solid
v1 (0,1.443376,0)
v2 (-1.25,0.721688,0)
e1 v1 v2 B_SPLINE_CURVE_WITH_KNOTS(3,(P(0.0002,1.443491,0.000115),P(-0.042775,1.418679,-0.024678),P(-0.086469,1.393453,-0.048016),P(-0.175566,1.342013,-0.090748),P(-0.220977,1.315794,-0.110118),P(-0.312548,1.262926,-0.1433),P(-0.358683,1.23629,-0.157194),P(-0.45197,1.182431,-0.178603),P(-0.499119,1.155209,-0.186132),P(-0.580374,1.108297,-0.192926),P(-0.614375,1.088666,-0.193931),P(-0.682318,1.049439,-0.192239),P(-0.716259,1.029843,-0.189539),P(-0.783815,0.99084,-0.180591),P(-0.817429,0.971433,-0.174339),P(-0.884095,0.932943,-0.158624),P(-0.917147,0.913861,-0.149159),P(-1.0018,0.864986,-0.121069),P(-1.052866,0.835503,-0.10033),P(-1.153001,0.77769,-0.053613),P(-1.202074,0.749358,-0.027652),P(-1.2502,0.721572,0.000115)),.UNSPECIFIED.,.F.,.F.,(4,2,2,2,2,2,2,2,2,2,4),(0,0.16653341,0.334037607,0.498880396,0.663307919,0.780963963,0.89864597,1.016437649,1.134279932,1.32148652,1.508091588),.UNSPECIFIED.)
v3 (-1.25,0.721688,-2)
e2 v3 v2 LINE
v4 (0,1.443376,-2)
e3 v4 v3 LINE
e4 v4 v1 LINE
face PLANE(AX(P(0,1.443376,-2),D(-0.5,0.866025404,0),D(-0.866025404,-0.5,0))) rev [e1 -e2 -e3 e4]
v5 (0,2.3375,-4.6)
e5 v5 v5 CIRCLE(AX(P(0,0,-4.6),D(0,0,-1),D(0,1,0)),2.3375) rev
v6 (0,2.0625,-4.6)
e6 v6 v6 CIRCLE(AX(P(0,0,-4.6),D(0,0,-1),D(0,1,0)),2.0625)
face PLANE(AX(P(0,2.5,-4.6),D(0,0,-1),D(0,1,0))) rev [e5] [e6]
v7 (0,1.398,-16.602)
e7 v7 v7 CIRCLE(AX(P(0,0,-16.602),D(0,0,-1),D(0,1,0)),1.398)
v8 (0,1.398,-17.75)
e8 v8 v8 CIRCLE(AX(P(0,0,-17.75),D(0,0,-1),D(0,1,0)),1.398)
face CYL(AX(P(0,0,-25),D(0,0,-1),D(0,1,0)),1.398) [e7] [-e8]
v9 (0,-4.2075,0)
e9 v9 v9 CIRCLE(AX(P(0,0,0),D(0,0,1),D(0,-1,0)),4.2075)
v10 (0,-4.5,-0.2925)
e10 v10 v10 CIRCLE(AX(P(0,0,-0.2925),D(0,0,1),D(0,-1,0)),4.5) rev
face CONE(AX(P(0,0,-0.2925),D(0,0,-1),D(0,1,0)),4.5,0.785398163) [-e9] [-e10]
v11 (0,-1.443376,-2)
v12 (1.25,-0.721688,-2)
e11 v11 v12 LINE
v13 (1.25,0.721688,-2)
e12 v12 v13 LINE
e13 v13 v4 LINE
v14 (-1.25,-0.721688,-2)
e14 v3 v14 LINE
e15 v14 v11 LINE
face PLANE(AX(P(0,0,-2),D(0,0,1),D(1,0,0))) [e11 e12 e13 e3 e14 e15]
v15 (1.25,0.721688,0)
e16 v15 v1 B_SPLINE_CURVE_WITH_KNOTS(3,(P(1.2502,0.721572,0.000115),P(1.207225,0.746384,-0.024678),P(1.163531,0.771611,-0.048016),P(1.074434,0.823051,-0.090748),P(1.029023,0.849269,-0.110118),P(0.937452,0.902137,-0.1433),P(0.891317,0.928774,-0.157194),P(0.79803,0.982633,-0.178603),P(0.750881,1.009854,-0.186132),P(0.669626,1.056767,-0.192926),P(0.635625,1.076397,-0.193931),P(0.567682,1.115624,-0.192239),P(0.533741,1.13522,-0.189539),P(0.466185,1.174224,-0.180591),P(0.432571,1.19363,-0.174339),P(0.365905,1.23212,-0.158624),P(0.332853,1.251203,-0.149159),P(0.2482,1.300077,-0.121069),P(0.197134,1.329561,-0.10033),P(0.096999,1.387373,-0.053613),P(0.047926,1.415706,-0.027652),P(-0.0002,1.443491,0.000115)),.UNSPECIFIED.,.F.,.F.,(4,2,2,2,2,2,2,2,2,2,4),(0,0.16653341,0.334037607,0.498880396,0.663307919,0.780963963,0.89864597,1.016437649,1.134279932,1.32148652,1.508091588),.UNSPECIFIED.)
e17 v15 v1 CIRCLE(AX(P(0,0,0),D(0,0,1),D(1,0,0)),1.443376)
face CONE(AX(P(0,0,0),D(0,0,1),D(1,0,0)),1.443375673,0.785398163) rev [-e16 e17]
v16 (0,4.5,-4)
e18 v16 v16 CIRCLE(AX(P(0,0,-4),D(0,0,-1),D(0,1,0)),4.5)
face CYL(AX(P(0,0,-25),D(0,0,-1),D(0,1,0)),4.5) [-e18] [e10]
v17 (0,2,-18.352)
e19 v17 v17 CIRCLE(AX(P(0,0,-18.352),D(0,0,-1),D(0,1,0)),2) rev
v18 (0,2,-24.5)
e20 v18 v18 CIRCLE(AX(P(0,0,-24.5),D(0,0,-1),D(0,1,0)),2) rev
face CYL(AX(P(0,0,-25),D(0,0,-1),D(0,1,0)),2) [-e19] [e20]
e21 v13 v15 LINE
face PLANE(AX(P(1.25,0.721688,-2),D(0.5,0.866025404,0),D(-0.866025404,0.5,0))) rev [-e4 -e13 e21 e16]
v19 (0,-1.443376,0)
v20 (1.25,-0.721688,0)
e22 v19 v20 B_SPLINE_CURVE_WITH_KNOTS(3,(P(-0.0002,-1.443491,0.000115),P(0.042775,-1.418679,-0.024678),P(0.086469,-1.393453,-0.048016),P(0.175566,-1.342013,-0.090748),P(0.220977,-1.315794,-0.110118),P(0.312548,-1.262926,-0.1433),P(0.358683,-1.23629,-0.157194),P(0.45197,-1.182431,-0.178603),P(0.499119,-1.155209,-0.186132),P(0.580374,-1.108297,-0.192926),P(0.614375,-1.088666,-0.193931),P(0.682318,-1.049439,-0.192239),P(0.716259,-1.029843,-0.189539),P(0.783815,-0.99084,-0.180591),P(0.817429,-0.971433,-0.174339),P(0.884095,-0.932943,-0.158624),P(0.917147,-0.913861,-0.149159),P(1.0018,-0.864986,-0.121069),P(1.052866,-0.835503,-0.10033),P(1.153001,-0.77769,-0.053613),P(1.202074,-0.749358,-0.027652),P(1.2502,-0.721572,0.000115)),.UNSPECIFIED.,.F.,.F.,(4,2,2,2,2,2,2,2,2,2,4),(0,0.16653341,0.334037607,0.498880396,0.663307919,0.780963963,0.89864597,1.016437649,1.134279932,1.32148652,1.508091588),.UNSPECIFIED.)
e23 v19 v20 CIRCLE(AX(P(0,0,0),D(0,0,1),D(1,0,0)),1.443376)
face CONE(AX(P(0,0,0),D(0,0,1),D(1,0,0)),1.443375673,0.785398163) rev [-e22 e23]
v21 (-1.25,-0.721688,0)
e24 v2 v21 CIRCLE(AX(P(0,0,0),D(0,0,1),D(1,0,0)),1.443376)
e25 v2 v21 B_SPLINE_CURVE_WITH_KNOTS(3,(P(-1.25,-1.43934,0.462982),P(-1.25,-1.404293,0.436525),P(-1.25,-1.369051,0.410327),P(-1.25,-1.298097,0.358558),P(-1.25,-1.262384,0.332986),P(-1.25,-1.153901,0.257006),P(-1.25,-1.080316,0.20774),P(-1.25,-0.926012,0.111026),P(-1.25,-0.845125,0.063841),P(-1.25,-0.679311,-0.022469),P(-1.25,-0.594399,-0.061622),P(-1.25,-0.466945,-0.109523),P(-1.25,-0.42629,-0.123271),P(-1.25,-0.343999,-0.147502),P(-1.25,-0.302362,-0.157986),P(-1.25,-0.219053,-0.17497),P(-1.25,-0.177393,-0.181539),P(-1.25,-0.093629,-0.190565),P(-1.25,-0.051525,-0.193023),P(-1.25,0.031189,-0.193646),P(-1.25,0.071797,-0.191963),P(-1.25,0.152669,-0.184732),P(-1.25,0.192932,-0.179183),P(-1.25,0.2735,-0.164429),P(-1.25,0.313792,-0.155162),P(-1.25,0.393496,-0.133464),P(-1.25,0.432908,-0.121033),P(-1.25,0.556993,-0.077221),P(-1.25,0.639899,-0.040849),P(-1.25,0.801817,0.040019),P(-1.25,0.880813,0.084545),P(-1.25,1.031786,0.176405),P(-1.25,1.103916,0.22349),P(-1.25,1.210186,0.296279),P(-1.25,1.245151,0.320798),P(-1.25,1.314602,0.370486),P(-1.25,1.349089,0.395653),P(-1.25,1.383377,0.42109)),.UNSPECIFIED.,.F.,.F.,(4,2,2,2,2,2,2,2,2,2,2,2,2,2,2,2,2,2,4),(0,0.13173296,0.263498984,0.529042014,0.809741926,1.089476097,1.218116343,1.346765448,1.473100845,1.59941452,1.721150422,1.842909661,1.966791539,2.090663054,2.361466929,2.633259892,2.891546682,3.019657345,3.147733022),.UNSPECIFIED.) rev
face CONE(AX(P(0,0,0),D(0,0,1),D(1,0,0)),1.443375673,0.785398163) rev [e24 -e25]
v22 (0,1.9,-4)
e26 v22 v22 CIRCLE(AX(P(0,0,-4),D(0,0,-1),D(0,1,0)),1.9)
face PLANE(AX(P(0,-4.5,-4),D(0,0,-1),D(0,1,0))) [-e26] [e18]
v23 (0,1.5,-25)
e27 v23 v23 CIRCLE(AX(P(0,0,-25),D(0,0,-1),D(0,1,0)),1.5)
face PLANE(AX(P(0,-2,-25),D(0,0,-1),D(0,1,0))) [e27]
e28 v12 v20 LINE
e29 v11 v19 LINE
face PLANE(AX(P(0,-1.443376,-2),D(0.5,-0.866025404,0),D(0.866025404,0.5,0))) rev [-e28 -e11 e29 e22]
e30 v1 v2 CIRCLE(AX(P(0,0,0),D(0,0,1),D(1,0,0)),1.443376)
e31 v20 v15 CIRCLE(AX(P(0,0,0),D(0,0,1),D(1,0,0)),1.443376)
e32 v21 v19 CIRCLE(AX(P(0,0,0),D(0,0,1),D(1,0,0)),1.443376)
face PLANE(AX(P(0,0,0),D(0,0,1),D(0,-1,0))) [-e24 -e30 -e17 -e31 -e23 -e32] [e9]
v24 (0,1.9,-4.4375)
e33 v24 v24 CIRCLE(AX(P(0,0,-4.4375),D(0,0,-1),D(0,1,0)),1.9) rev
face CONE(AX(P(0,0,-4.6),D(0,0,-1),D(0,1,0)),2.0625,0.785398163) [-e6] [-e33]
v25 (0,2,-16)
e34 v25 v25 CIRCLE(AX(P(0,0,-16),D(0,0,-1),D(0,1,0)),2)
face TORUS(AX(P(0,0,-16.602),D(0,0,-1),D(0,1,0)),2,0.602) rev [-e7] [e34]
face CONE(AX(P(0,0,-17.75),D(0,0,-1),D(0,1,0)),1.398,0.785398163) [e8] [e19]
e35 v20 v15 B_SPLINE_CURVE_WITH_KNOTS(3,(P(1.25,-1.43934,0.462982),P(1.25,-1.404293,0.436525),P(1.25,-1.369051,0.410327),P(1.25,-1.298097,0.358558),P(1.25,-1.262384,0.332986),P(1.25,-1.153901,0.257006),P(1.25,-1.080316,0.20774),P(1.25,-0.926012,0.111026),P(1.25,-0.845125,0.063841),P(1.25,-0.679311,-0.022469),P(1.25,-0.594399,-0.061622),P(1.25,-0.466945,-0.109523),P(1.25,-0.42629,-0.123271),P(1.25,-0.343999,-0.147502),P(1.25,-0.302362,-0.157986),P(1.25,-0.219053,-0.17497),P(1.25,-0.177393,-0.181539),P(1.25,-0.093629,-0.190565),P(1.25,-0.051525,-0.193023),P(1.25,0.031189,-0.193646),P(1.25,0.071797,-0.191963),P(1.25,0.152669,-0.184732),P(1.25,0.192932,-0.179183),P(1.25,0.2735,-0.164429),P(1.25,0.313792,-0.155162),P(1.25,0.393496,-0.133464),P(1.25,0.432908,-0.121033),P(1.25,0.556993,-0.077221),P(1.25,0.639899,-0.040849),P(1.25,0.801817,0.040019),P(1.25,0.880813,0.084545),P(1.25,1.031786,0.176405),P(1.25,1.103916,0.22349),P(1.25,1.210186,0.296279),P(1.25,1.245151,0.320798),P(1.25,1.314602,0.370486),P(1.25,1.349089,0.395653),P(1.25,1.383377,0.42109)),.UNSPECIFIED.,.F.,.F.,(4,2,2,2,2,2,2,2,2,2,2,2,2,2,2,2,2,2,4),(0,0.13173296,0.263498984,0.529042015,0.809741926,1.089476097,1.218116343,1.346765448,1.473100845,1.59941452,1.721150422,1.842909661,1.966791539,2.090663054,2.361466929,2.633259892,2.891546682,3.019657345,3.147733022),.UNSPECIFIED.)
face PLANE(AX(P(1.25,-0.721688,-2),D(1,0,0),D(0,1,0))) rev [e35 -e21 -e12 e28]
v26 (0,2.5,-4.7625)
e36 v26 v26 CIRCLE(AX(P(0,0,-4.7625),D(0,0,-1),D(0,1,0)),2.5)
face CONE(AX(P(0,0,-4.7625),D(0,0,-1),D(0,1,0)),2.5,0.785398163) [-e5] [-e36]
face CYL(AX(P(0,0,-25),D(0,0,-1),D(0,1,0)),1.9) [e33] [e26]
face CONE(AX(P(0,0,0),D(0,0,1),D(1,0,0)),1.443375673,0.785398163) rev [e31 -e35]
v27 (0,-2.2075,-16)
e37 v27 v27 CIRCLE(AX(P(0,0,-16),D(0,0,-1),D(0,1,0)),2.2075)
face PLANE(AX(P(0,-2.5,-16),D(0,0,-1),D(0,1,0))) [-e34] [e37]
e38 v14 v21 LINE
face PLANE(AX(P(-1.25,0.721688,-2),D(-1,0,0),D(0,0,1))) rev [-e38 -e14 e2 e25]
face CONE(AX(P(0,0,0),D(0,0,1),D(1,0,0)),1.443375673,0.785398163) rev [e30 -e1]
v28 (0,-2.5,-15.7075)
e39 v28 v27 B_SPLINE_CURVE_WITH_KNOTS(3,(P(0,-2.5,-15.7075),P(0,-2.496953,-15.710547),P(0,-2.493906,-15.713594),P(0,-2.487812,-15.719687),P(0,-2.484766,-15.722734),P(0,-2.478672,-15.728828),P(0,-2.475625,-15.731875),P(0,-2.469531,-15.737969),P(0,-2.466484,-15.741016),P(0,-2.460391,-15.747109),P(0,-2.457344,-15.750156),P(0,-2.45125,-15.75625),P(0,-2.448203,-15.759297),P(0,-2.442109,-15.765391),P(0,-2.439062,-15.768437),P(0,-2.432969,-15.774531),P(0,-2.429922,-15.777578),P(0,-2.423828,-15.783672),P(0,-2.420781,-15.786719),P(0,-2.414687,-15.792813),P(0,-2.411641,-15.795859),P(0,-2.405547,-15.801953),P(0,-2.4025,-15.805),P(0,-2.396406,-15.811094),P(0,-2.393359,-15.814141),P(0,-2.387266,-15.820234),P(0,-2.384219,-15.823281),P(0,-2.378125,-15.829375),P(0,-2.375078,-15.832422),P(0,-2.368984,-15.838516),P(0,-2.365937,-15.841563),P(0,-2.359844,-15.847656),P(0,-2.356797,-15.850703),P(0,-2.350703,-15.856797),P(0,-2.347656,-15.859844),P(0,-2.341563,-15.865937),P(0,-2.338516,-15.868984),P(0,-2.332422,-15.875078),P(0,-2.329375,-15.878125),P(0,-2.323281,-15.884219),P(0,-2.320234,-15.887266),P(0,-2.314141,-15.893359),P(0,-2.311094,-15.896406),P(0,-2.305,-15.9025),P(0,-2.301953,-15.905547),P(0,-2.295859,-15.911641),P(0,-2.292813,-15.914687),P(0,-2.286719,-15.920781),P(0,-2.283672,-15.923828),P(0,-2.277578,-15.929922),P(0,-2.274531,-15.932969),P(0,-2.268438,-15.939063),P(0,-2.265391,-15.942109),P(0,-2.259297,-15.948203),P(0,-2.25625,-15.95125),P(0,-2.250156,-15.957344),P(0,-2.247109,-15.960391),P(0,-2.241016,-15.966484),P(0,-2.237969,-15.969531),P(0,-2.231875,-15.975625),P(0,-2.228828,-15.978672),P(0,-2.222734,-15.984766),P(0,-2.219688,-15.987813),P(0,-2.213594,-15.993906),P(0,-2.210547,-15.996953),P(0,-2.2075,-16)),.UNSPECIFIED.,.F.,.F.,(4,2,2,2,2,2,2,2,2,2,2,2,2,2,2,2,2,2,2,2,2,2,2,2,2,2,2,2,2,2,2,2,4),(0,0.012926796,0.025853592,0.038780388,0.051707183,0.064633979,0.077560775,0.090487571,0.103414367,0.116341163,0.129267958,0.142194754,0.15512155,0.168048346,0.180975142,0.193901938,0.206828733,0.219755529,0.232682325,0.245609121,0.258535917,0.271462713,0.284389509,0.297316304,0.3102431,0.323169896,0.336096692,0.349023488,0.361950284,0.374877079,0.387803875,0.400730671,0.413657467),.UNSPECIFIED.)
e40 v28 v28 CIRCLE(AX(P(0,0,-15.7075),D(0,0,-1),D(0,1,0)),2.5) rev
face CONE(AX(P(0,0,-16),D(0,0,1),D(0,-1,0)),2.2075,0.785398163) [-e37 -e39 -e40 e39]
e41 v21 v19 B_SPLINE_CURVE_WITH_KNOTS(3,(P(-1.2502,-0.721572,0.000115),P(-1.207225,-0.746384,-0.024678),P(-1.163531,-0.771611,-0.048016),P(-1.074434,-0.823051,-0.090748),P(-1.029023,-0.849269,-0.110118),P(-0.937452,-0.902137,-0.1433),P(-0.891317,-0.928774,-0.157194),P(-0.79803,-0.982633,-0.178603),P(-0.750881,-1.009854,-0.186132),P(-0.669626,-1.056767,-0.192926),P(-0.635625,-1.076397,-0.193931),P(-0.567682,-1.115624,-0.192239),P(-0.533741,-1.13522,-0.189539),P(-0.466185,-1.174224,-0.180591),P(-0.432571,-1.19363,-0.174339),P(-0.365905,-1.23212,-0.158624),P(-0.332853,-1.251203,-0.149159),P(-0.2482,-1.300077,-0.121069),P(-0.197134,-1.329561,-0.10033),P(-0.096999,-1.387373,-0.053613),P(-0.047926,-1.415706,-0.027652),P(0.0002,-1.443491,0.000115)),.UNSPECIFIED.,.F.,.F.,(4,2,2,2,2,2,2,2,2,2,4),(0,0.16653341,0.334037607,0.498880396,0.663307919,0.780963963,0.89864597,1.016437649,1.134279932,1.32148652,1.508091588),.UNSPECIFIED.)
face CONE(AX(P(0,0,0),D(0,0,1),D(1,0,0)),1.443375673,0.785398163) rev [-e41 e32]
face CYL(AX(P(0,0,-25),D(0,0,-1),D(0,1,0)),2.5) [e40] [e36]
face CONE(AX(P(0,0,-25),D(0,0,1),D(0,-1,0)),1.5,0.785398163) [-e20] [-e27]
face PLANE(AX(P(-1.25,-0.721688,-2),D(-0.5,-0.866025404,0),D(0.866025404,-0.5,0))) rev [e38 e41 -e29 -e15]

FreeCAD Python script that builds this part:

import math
import FreeCAD as App
import Part
import Sketcher
from FreeCAD import Vector
Q = App.Units.Quantity


def edges_at(feature, points):
    """Names of the edges that pass closest to the given points."""
    edges = feature.Shape.Edges
    near = lambda p: min(range(len(edges)), key=lambda i: edges[i].distToShape(Part.Vertex(*p))[0])
    return sorted({f"Edge{near(p) + 1}" for p in points})


def add_polygon(sketch, points):
    """Adds a closed chain of lines whose ends are joined by coincident constraints."""
    first, n = sketch.GeometryCount, len(points)
    for a, b in zip(points, points[1:] + points[:1]):
        sketch.addGeometry(Part.LineSegment(App.Vector(*a, 0), App.Vector(*b, 0)), False)
    for i in range(n):
        sketch.addConstraint(Sketcher.Constraint("Coincident", first + i, 2, first + (i + 1) % n, 1))

doc = App.newDocument("Part")
body = doc.addObject("PartDesign::Body", "Body")

sketch1 = body.newObject("Sketcher::SketchObject", "Sketch")
sketch1.AttachmentSupport = (doc.getObject("YZ_Plane"), [""])
sketch1.MapMode = "FlatFace"
add_polygon(sketch1, [(4.5, -4), (4.5, 0), (0, 0), (0, -25), (2, -25), (2, -16), (2.5, -16), (2.5, -4)])
sketch1.addConstraint(Sketcher.Constraint("Vertical", 0))
sketch1.addConstraint(Sketcher.Constraint("Horizontal", 1))
sketch1.addConstraint(Sketcher.Constraint("Vertical", 2))
sketch1.addConstraint(Sketcher.Constraint("Horizontal", 3))
sketch1.addConstraint(Sketcher.Constraint("Vertical", 4))
sketch1.addConstraint(Sketcher.Constraint("Horizontal", 5))
sketch1.addConstraint(Sketcher.Constraint("Vertical", 6))
sketch1.addConstraint(Sketcher.Constraint("Horizontal", 7))
sketch1.addConstraint(Sketcher.Constraint("Coincident", 1, 2, -1, 1))
sketch1.addConstraint(Sketcher.Constraint("Equal", 3, 7))
sketch1.addConstraint(Sketcher.Constraint("DistanceX", 3, 1, 3, 2, 2.0))
sketch1.addConstraint(Sketcher.Constraint("DistanceY", 0, 1, 0, 2, 4.0))
sketch1.addConstraint(Sketcher.Constraint("DistanceY", 2, 2, 2, 1, 25.0))
sketch1.addConstraint(Sketcher.Constraint("DistanceY", 4, 1, 4, 2, 9.0))
sketch1.addConstraint(Sketcher.Constraint("DistanceX", 1, 2, 1, 1, 4.5))
revolution = body.newObject("PartDesign::Revolution", "Revolution")
revolution.Profile = sketch1
revolution.ReferenceAxis = (sketch1, ["V_Axis"])
revolution.Angle = 360

sketch2 = body.newObject("Sketcher::SketchObject", "Sketch001")
sketch2.AttachmentSupport = (doc.getObject("YZ_Plane"), [""])
sketch2.MapMode = "FlatFace"
add_polygon(sketch2, [(2.5, -4), (1.9, -4), (1.9, -4.6), (2.5, -4.6)])
sketch2.addConstraint(Sketcher.Constraint("Horizontal", 0))
sketch2.addConstraint(Sketcher.Constraint("Vertical", 1))
sketch2.addConstraint(Sketcher.Constraint("Horizontal", 2))
sketch2.addConstraint(Sketcher.Constraint("Vertical", 3))
sketch2.addConstraint(Sketcher.Constraint("Equal", 2, 1))
sketch2.addConstraint(Sketcher.Constraint("DistanceX", 0, 2, 0, 1, 0.6))
sketch2.addConstraint(Sketcher.Constraint("DistanceY", 0, 2, -1, 1, 4.0))
sketch2.addConstraint(Sketcher.Constraint("DistanceX", -1, 1, 0, 2, 1.9))
groove = body.newObject("PartDesign::Groove", "Groove")
groove.Profile = sketch2
groove.ReferenceAxis = (sketch2, ["V_Axis"])
groove.Angle = 360
doc.recompute()

chamfer = body.newObject("PartDesign::Chamfer", "Chamfer")
chamfer.Base = (groove, edges_at(groove, [(0, -1.9, -4.6), (0, -2.5, -4.6)]))
chamfer.Size = 0.1625

sketch3 = body.newObject("Sketcher::SketchObject", "Sketch002")
sketch3.AttachmentSupport = (doc.getObject("YZ_Plane"), [""])
sketch3.MapMode = "FlatFace"
sketch3.addGeometry(Part.LineSegment(Vector(2.5, -18.9, 0), Vector(2.5, -16, 0)), False)
sketch3.addGeometry(Part.LineSegment(Vector(2.5, -16, 0), Vector(2, -16, 0)), False)
sketch3.addGeometry(Part.ArcOfCircle(Part.Circle(Vector(2, -16.6, 0), Vector(0, 0, 1), 0.6), math.radians(90), math.radians(180)), False)
sketch3.addGeometry(Part.LineSegment(Vector(1.4, -16.6, 0), Vector(1.4, -17.8, 0)), False)
sketch3.addGeometry(Part.LineSegment(Vector(1.4, -17.8, 0), Vector(2.5, -18.9, 0)), False)
sketch3.addConstraint(Sketcher.Constraint("Coincident", 0, 2, 1, 1))
sketch3.addConstraint(Sketcher.Constraint("Tangent", 1, 2, 2, 1))
sketch3.addConstraint(Sketcher.Constraint("Tangent", 2, 2, 3, 1))
sketch3.addConstraint(Sketcher.Constraint("Coincident", 3, 2, 4, 1))
sketch3.addConstraint(Sketcher.Constraint("Coincident", 4, 2, 0, 1))
sketch3.addConstraint(Sketcher.Constraint("Vertical", 0))
sketch3.addConstraint(Sketcher.Constraint("Horizontal", 1))
sketch3.addConstraint(Sketcher.Constraint("Vertical", 3))
sketch3.addConstraint(Sketcher.Constraint("Angle", 4, Q("-45 deg")))
sketch3.addConstraint(Sketcher.Constraint("DistanceX", 1, 2, 1, 1, 0.5))
sketch3.addConstraint(Sketcher.Constraint("DistanceX", -1, 1, 2, 3, 2.0))
sketch3.addConstraint(Sketcher.Constraint("DistanceY", 0, 2, -1, 1, 16.0))
sketch3.addConstraint(Sketcher.Constraint("Radius", 2, 0.602))
sketch3.addConstraint(Sketcher.Constraint("DistanceY", 0, 1, 0, 2, 2.852))
groove2 = body.newObject("PartDesign::Groove", "Groove001")
groove2.Profile = sketch3
groove2.ReferenceAxis = (sketch3, ["V_Axis"])
groove2.Angle = 360
doc.recompute()

chamfer2 = body.newObject("PartDesign::Chamfer", "Chamfer001")
chamfer2.Base = (groove2, edges_at(groove2, [(0, -2, -25)]))
chamfer2.Size = 0.5
doc.recompute()

chamfer3 = body.newObject("PartDesign::Chamfer", "Chamfer002")
chamfer3.Base = (chamfer2, edges_at(chamfer2, [(0, -2.5, -16), (0, -4.5, 0)]))
chamfer3.Size = 0.2925

sketch4 = body.newObject("Sketcher::SketchObject", "Sketch003")
sketch4.AttachmentSupport = (doc.getObject("XY_Plane"), [""])
sketch4.MapMode = "FlatFace"
add_polygon(sketch4, [(1.2, 0.7), (0, 1.4), (-1.2, 0.7), (-1.2, -0.7), (0, -1.4), (1.2, -0.7)])
sketch4.addConstraint(Sketcher.Constraint("Vertical", 2))
sketch4.addConstraint(Sketcher.Constraint("Vertical", 5))
sketch4.addConstraint(Sketcher.Constraint("Symmetric", 0, 2, 3, 2, -1, 1))
sketch4.addConstraint(Sketcher.Constraint("Symmetric", 1, 2, 4, 2, -1, 1))
sketch4.addConstraint(Sketcher.Constraint("PointOnObject", 0, 2, -2))
sketch4.addConstraint(Sketcher.Constraint("Parallel", 0, 3))
sketch4.addConstraint(Sketcher.Constraint("Horizontal", 2, 2, 4, 2))
sketch4.addConstraint(Sketcher.Constraint("Angle", 0, Q("150 deg")))
sketch4.addConstraint(Sketcher.Constraint("DistanceX", 2, 2, 4, 2, 2.5))
sketch4.addConstraint(Sketcher.Constraint("DistanceY", 2, 2, 2, 1, 1.443376))
pocket1 = body.newObject("PartDesign::Pocket", "Pocket")
pocket1.Profile = sketch4
pocket1.Length = 2

sketch5 = body.newObject("Sketcher::SketchObject", "Sketch004")
sketch5.AttachmentSupport = (doc.getObject("YZ_Plane"), [""])
sketch5.MapMode = "FlatFace"
add_polygon(sketch5, [(0, 0), (-1.4, 0), (0, -1.4)])
sketch5.addConstraint(Sketcher.Constraint("Horizontal", 0))
sketch5.addConstraint(Sketcher.Constraint("Vertical", 2))
sketch5.addConstraint(Sketcher.Constraint("Coincident", 2, 2, -1, 1))
sketch5.addConstraint(Sketcher.Constraint("Equal", 0, 2))
sketch5.addConstraint(Sketcher.Constraint("Distance", 1, 2.041241))
groove3 = body.newObject("PartDesign::Groove", "Groove002")
groove3.Profile = sketch5
groove3.ReferenceAxis = (sketch5, ["V_Axis"])
groove3.Angle = 360

doc.recompute()
